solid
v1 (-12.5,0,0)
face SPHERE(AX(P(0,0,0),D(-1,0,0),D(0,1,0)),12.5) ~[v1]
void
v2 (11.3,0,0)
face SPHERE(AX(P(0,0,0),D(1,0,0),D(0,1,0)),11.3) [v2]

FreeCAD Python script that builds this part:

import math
import FreeCAD as App
import Part
import Sketcher
from FreeCAD import Vector

doc = App.newDocument("Part")
body = doc.addObject("PartDesign::Body", "Body")

sketch1 = doc.addObject("Sketcher::SketchObject", "Sketch")
body.addObject(sketch1)
sketch1.AttachmentSupport = (doc.XY_Plane, [""])
sketch1.MapMode = "FlatFace"
sketch1.addGeometry([
    Part.LineSegment(Vector(11.3, 0, 0), Vector(12.5, 0, 0)),
    Part.ArcOfCircle(Part.Circle(Vector(0, 0, 0), Vector(0, 0, 1), 12.5), math.radians(0), math.radians(180)),
    Part.LineSegment(Vector(-12.5, 0, 0), Vector(-11.3, 0, 0)),
    Part.ArcOfCircle(Part.Circle(Vector(0, 0, 0), Vector(0, 0, 1), 11.3), math.radians(0), math.radians(180)),
], False)
sketch1.addConstraint([
    Sketcher.Constraint("Coincident", 0, 2, 1, 1),
    Sketcher.Constraint("Coincident", 1, 2, 2, 1),
    Sketcher.Constraint("Coincident", 2, 2, 3, 2),
    Sketcher.Constraint("Coincident", 3, 1, 0, 1),
    Sketcher.Constraint("Horizontal", 0),
    Sketcher.Constraint("Horizontal", 2),
    Sketcher.Constraint("Coincident", 1, 3, -1, 1),
    Sketcher.Constraint("Coincident", 3, 3, -1, 1),
    Sketcher.Constraint("PointOnObject", 0, 2, -1),
    Sketcher.Constraint("PointOnObject", 1, 2, -1),
    Sketcher.Constraint("Radius", 1, 12.5),
    Sketcher.Constraint("Radius", 3, 11.3),
])
revolution = doc.addObject("PartDesign::Revolution", "Revolution")
body.addObject(revolution)
revolution.Profile = sketch1
revolution.ReferenceAxis = (sketch1, ["H_Axis"])
revolution.Angle = 360

doc.recompute()
